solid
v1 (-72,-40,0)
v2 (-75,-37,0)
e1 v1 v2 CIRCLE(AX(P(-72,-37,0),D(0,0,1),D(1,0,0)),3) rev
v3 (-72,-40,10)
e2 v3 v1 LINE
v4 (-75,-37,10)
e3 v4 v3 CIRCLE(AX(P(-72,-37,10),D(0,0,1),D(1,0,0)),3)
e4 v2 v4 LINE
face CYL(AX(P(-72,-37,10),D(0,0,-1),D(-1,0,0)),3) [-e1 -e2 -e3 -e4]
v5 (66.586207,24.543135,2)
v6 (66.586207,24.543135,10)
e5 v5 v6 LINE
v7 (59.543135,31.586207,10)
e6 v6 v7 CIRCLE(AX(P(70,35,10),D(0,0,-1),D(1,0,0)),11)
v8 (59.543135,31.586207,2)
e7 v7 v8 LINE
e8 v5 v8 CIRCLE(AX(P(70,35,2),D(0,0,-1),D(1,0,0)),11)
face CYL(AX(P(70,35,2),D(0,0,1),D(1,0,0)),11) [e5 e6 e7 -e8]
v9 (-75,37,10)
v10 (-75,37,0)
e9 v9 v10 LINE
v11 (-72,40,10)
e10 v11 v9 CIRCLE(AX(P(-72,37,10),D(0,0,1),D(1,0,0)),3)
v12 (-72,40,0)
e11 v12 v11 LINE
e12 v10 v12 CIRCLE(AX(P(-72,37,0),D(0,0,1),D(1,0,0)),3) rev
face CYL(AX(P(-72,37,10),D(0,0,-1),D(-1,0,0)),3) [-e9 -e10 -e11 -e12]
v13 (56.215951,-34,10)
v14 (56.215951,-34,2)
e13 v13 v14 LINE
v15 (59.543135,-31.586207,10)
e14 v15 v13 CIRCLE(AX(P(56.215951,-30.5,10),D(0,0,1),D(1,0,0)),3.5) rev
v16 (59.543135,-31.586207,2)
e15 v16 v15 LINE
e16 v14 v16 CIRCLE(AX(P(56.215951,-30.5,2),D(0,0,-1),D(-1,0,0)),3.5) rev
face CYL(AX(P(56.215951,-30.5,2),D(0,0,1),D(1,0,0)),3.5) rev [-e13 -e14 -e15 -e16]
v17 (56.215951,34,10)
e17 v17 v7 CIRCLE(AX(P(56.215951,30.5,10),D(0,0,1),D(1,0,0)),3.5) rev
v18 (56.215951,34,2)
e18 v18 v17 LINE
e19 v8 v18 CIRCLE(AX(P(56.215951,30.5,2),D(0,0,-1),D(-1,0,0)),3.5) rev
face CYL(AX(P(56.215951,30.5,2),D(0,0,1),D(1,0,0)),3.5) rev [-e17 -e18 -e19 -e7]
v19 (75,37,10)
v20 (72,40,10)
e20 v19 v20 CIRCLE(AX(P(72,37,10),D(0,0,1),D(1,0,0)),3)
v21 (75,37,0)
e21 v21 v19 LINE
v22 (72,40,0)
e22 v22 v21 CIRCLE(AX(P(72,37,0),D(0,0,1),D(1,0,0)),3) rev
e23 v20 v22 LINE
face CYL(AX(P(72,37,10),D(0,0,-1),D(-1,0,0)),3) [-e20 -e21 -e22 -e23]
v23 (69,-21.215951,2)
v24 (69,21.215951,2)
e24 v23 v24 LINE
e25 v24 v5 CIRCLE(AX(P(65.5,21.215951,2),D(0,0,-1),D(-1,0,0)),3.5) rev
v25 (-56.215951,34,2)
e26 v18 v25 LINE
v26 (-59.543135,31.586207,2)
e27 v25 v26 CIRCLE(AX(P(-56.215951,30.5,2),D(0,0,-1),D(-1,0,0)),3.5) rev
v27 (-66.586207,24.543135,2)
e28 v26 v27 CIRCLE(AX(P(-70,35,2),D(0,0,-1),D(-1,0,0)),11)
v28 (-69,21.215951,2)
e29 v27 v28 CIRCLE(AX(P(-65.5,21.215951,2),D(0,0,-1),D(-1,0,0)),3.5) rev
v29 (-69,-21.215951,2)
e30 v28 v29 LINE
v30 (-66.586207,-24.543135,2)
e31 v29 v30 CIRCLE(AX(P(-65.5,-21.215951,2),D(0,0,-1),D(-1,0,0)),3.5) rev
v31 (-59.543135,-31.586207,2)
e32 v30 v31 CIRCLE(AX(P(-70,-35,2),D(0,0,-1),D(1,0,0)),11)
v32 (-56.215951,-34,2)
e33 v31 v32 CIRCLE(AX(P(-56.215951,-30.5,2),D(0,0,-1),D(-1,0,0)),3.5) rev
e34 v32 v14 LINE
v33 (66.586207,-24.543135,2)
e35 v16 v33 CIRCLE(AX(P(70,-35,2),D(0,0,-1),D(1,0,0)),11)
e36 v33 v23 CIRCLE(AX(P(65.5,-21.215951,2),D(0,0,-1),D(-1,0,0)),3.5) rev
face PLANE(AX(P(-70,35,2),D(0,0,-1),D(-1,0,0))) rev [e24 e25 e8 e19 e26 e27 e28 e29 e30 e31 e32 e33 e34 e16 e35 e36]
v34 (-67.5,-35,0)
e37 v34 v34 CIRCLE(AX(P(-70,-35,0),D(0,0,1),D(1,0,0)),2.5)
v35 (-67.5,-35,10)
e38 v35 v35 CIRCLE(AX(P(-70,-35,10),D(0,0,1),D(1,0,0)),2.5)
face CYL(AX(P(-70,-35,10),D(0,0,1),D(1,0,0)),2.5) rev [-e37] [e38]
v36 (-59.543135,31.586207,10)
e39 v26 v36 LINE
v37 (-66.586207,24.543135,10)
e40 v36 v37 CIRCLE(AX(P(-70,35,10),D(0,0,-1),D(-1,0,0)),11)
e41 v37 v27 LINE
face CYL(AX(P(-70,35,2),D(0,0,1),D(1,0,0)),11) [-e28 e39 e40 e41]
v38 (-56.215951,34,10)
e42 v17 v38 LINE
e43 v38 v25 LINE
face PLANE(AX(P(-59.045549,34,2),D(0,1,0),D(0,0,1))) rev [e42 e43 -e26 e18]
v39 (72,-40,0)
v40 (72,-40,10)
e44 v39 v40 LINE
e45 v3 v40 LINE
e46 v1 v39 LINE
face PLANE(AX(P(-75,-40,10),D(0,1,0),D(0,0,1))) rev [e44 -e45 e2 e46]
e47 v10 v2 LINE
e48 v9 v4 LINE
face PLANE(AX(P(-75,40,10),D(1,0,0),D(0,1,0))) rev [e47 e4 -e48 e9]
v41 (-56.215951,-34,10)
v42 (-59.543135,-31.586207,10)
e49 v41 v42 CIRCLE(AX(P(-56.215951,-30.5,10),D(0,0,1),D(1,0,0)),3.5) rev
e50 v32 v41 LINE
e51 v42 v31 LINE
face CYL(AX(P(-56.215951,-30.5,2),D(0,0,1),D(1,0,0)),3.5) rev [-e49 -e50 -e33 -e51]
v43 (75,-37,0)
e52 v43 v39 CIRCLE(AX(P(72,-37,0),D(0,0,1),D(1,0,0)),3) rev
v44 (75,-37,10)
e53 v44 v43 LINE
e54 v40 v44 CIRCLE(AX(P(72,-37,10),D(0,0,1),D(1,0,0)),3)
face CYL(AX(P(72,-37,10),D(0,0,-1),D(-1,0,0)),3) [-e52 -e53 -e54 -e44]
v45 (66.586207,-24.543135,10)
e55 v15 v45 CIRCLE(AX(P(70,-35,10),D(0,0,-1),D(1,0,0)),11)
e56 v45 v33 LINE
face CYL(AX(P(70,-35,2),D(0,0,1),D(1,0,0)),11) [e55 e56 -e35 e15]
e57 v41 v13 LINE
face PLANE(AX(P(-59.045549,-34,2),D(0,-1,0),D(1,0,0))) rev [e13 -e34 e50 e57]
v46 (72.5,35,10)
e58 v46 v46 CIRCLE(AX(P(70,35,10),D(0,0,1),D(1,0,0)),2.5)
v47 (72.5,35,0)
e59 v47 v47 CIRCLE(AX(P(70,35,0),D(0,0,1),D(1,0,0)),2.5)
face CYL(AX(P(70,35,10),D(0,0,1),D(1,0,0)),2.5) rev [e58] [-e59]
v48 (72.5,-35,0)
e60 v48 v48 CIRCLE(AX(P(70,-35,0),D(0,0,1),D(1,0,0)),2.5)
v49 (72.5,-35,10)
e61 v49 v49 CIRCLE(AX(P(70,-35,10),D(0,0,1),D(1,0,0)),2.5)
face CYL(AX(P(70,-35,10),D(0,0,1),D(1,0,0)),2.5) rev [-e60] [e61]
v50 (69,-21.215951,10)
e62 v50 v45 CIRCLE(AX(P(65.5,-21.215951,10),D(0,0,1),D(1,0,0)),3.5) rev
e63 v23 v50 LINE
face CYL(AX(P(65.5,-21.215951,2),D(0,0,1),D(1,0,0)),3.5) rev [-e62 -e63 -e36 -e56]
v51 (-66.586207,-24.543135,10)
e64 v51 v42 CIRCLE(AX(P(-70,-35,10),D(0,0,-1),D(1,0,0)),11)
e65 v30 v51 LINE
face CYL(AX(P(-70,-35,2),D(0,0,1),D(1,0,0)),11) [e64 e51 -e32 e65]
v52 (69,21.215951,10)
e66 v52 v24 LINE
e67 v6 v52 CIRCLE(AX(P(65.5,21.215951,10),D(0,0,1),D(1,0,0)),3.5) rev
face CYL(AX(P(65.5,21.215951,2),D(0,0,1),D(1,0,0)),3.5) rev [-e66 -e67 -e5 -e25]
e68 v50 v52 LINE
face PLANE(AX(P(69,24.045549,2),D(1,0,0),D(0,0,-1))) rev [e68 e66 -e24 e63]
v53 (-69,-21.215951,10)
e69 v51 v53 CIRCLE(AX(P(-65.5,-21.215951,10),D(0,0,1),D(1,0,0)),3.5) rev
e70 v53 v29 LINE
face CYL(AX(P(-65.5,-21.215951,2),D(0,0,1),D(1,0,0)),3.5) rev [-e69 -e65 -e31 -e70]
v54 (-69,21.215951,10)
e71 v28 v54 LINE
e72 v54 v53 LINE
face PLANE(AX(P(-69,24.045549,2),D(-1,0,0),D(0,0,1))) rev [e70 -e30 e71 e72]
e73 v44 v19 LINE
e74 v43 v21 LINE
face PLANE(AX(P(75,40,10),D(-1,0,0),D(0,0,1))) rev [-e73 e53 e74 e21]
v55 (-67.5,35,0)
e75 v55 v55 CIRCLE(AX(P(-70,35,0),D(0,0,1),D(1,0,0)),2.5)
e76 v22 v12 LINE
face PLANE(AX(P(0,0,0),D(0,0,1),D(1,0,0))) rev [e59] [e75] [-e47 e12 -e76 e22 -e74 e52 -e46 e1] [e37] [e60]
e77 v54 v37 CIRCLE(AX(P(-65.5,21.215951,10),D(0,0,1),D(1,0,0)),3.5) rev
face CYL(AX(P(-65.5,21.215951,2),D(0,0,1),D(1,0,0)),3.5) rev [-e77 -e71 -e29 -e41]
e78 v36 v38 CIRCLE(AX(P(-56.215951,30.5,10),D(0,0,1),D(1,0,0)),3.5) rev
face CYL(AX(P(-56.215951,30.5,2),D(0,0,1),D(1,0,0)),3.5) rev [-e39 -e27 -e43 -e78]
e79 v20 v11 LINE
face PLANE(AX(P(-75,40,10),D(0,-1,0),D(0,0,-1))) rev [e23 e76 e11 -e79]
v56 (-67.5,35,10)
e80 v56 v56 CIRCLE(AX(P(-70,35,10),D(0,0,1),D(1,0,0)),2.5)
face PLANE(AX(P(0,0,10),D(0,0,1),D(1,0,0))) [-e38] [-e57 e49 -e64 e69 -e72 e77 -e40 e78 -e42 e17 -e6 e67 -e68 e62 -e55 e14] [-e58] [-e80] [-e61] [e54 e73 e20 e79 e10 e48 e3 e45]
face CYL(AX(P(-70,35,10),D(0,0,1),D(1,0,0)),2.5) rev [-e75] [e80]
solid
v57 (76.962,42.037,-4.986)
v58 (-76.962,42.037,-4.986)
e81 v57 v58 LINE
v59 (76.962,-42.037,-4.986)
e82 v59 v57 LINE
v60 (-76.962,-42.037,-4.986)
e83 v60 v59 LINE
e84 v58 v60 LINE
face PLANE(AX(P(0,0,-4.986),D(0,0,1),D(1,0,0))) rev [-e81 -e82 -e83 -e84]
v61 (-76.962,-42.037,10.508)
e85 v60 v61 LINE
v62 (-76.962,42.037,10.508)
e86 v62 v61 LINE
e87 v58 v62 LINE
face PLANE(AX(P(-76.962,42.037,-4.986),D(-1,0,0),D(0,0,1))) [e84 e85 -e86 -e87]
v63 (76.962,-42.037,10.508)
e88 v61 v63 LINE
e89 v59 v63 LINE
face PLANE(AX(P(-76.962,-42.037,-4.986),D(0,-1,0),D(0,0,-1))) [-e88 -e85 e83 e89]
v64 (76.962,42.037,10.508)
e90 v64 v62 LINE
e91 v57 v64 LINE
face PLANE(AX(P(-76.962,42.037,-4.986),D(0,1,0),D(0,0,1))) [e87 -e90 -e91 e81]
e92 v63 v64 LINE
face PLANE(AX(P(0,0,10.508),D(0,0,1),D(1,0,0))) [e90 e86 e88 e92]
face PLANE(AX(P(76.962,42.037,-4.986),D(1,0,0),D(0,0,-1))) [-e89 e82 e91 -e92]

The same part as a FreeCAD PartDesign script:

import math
import FreeCAD as App
import Part
import Sketcher
from FreeCAD import Vector


def edges_at(feature, points):
    """Names of the edges that pass closest to the given points."""
    edges = feature.Shape.Edges
    near = lambda p: min(range(len(edges)), key=lambda i: edges[i].distToShape(Part.Vertex(*p))[0])
    return sorted({f"Edge{near(p) + 1}" for p in points})


def add_polygon(sketch, points):
    """Adds a closed chain of lines whose ends are joined by coincident constraints."""
    first, n = sketch.GeometryCount, len(points)
    for a, b in zip(points, points[1:] + points[:1]):
        sketch.addGeometry(Part.LineSegment(App.Vector(*a, 0), App.Vector(*b, 0)), False)
    for i in range(n):
        sketch.addConstraint(Sketcher.Constraint("Coincident", first + i, 2, first + (i + 1) % n, 1))

doc = App.newDocument("Part")
params = doc.addObject("Spreadsheet::Sheet", "Params")
for row, (alias, value) in enumerate([
    ("sketch1_width", "150 mm"),
    ("sketch1_height", "80 mm"),
    ("pad1_length", "10 mm"),
    ("fillet_radius", "3 mm"),
    ("sketch2_diameter", "5 mm"),
    ("hole_diameter", "5 mm"),
    ("sketch3_radius", "11 mm"),
    ("pocket1_length", "8 mm"),
    ("fillet2_radius", "3.5 mm"),
    ("pad2_length", "0.508 mm"),
    ("pad2_length2", "14.986 mm"),
], start=1):
    params.set(f"A{row}", alias)
    params.set(f"B{row}", "=" + value)
    params.setAlias(f"B{row}", alias)

body = doc.addObject("PartDesign::Body", "Body")

# Sketch on XY plane
sketch1 = body.newObject("Sketcher::SketchObject", "Sketch")
sketch1.AttachmentSupport = (doc.getObject("XY_Plane"), [""])
sketch1.MapMode = "FlatFace"
add_polygon(sketch1, [(-75, 40), (-75, -40), (75, -40), (75, 40)])  # lines 0-3
sketch1.addConstraint(Sketcher.Constraint("Vertical", 0))
sketch1.addConstraint(Sketcher.Constraint("Horizontal", 1))
sketch1.addConstraint(Sketcher.Constraint("Vertical", 2))
sketch1.addConstraint(Sketcher.Constraint("Horizontal", 3))
sketch1.addConstraint(Sketcher.Constraint("Symmetric", 0, 2, 2, 2, -1, 1))
sketch1.addConstraint(Sketcher.Constraint("DistanceX", 1, 1, 1, 2, 150.0))
sketch1.addConstraint(Sketcher.Constraint("DistanceY", 0, 2, 0, 1, 80.0))
sketch1.setExpression("Constraints[9]", "Params.sketch1_width")
sketch1.setExpression("Constraints[10]", "Params.sketch1_height")
pad1 = body.newObject("PartDesign::Pad", "Pad")
pad1.Profile = sketch1
pad1.setExpression("Length", "Params.pad1_length")
doc.recompute()

fillet = body.newObject("PartDesign::Fillet", "Fillet")
fillet.Base = (pad1, edges_at(pad1, [
    (75, -40, 5),
    (-75, -40, 5),
    (-75, 40, 5),
    (75, 40, 5),
]))
fillet.setExpression("Radius", "Params.fillet_radius")

# Sketch on XY plane
sketch2 = body.newObject("Sketcher::SketchObject", "Sketch001")
sketch2.AttachmentSupport = (doc.getObject("XY_Plane"), [""])
sketch2.MapMode = "FlatFace"
sketch2.AttachmentOffset = App.Placement(Vector(0, 0, 10), App.Rotation())
sketch2.addGeometry(Part.Circle(Vector(-70, -35, 0), Vector(0, 0, 1), 2.5), False)
sketch2.addGeometry(Part.Circle(Vector(-70, 35, 0), Vector(0, 0, 1), 2.5), False)
sketch2.addGeometry(Part.Circle(Vector(70, 35, 0), Vector(0, 0, 1), 2.5), False)
sketch2.addGeometry(Part.Circle(Vector(70, -35, 0), Vector(0, 0, 1), 2.5), False)
sketch2.addConstraint(Sketcher.Constraint("Equal", 0, 1))
sketch2.addConstraint(Sketcher.Constraint("Equal", 1, 2))
sketch2.addConstraint(Sketcher.Constraint("Equal", 2, 3))
sketch2.addConstraint(Sketcher.Constraint("Symmetric", 0, 3, 2, 3, -1, 1))
sketch2.addConstraint(Sketcher.Constraint("Symmetric", 1, 3, 3, 3, -1, 1))
sketch2.addConstraint(Sketcher.Constraint("Symmetric", 1, 3, 2, 3, -2))
sketch2.addConstraint(Sketcher.Constraint("Diameter", 0, 5.0))
sketch2.addConstraint(Sketcher.Constraint("DistanceX", 0, 3, -1, 1, 70.0))
sketch2.addConstraint(Sketcher.Constraint("DistanceY", 0, 3, -1, 1, 35.0))
sketch2.setExpression("Constraints[6]", "Params.sketch2_diameter")
doc.recompute()
hole = body.newObject("PartDesign::Hole", "Hole")
hole.Profile = sketch2
hole.ThreadType = "None"
hole.setExpression("Diameter", "Params.hole_diameter")
hole.DepthType = "ThroughAll"

# Sketch on XY plane
sketch3 = body.newObject("Sketcher::SketchObject", "Sketch002")
sketch3.AttachmentSupport = (doc.getObject("XY_Plane"), [""])
sketch3.MapMode = "FlatFace"
sketch3.AttachmentOffset = App.Placement(Vector(0, 0, 10), App.Rotation())
sketch3.addGeometry(Part.LineSegment(Vector(59, 34, 0), Vector(-59, 34, 0)), False)
sketch3.addGeometry(Part.ArcOfCircle(Part.Circle(Vector(-70, 35, 0), Vector(0, 0, 1), 11), math.radians(-85), math.radians(-5)), False)
sketch3.addGeometry(Part.LineSegment(Vector(-69, 24, 0), Vector(-69, -24, 0)), False)
sketch3.addGeometry(Part.ArcOfCircle(Part.Circle(Vector(-70, -35, 0), Vector(0, 0, 1), 11), math.radians(5), math.radians(85)), False)
sketch3.addGeometry(Part.LineSegment(Vector(-59, -34, 0), Vector(59, -34, 0)), False)
sketch3.addGeometry(Part.ArcOfCircle(Part.Circle(Vector(70, -35, 0), Vector(0, 0, 1), 11), math.radians(95), math.radians(175)), False)
sketch3.addGeometry(Part.LineSegment(Vector(69, -24, 0), Vector(69, 24, 0)), False)
sketch3.addGeometry(Part.ArcOfCircle(Part.Circle(Vector(70, 35, 0), Vector(0, 0, 1), 11), math.radians(-175), math.radians(-95)), False)
sketch3.addConstraint(Sketcher.Constraint("Coincident", 0, 2, 1, 2))
sketch3.addConstraint(Sketcher.Constraint("Coincident", 1, 1, 2, 1))
sketch3.addConstraint(Sketcher.Constraint("Coincident", 2, 2, 3, 2))
sketch3.addConstraint(Sketcher.Constraint("Coincident", 3, 1, 4, 1))
sketch3.addConstraint(Sketcher.Constraint("Coincident", 4, 2, 5, 2))
sketch3.addConstraint(Sketcher.Constraint("Coincident", 5, 1, 6, 1))
sketch3.addConstraint(Sketcher.Constraint("Coincident", 6, 2, 7, 2))
sketch3.addConstraint(Sketcher.Constraint("Coincident", 7, 1, 0, 1))
sketch3.addConstraint(Sketcher.Constraint("Horizontal", 0))
sketch3.addConstraint(Sketcher.Constraint("Vertical", 2))
sketch3.addConstraint(Sketcher.Constraint("Horizontal", 4))
sketch3.addConstraint(Sketcher.Constraint("Vertical", 6))
sketch3.addConstraint(Sketcher.Constraint("Equal", 1, 3))
sketch3.addConstraint(Sketcher.Constraint("Equal", 3, 5))
sketch3.addConstraint(Sketcher.Constraint("Equal", 5, 7))
sketch3.addConstraint(Sketcher.Constraint("Symmetric", 1, 3, 5, 3, -1, 1))
sketch3.addConstraint(Sketcher.Constraint("Symmetric", 3, 3, 7, 3, -1, 1))
sketch3.addConstraint(Sketcher.Constraint("Symmetric", 3, 3, 5, 3, -2))
sketch3.addConstraint(Sketcher.Constraint("Horizontal", 2, 2, 5, 1))
sketch3.addConstraint(Sketcher.Constraint("Vertical", 0, 2, 3, 1))
sketch3.addConstraint(Sketcher.Constraint("Radius", 1, 11.0))
sketch3.addConstraint(Sketcher.Constraint("DistanceX", 1, 3, -1, 1, 70.0))
sketch3.addConstraint(Sketcher.Constraint("DistanceY", -1, 1, 1, 3, 35.0))
sketch3.addConstraint(Sketcher.Constraint("DistanceY", -1, 1, 0, 2, 34.0))
sketch3.addConstraint(Sketcher.Constraint("DistanceX", 1, 1, -1, 1, 69.0))
sketch3.setExpression("Constraints[20]", "Params.sketch3_radius")
pocket1 = body.newObject("PartDesign::Pocket", "Pocket")
pocket1.Profile = sketch3
pocket1.setExpression("Length", "Params.pocket1_length")
doc.recompute()

fillet2 = body.newObject("PartDesign::Fillet", "Fillet001")
fillet2.Base = (pocket1, edges_at(pocket1, [
    (-69, 24.046, 6),
    (-59.046, 34, 6),
    (59.046, 34, 6),
    (69, 24.046, 6),
    (69, -24.046, 6),
    (59.046, -34, 6),
    (-59.046, -34, 6),
    (-69, -24.046, 6),
]))
fillet2.setExpression("Radius", "Params.fillet2_radius")
body2 = doc.addObject("PartDesign::Body", "Body001")

# Sketch on XY plane
sketch4 = body2.newObject("Sketcher::SketchObject", "Sketch003")
sketch4.AttachmentSupport = (doc.getObject("XY_Plane001"), [""])
sketch4.MapMode = "FlatFace"
sketch4.AttachmentOffset = App.Placement(Vector(0, 0, 10), App.Rotation())
add_polygon(sketch4, [(-77, 42), (-77, -42), (77, -42), (77, 42)])  # lines 0-3
sketch4.addConstraint(Sketcher.Constraint("Vertical", 0))
sketch4.addConstraint(Sketcher.Constraint("Horizontal", 1))
sketch4.addConstraint(Sketcher.Constraint("Vertical", 2))
sketch4.addConstraint(Sketcher.Constraint("Horizontal", 3))
sketch4.addConstraint(Sketcher.Constraint("Symmetric", 0, 2, 2, 2, -1, 1))
sketch4.addConstraint(Sketcher.Constraint("DistanceX", 1, 1, 1, 2, 153.924))
sketch4.addConstraint(Sketcher.Constraint("DistanceY", 0, 2, 0, 1, 84.074))
pad2 = body2.newObject("PartDesign::Pad", "Pad001")
pad2.Profile = sketch4
pad2.Type = "TwoLengths"
pad2.setExpression("Length", "Params.pad2_length")
pad2.setExpression("Length2", "Params.pad2_length2")

doc.recompute()
